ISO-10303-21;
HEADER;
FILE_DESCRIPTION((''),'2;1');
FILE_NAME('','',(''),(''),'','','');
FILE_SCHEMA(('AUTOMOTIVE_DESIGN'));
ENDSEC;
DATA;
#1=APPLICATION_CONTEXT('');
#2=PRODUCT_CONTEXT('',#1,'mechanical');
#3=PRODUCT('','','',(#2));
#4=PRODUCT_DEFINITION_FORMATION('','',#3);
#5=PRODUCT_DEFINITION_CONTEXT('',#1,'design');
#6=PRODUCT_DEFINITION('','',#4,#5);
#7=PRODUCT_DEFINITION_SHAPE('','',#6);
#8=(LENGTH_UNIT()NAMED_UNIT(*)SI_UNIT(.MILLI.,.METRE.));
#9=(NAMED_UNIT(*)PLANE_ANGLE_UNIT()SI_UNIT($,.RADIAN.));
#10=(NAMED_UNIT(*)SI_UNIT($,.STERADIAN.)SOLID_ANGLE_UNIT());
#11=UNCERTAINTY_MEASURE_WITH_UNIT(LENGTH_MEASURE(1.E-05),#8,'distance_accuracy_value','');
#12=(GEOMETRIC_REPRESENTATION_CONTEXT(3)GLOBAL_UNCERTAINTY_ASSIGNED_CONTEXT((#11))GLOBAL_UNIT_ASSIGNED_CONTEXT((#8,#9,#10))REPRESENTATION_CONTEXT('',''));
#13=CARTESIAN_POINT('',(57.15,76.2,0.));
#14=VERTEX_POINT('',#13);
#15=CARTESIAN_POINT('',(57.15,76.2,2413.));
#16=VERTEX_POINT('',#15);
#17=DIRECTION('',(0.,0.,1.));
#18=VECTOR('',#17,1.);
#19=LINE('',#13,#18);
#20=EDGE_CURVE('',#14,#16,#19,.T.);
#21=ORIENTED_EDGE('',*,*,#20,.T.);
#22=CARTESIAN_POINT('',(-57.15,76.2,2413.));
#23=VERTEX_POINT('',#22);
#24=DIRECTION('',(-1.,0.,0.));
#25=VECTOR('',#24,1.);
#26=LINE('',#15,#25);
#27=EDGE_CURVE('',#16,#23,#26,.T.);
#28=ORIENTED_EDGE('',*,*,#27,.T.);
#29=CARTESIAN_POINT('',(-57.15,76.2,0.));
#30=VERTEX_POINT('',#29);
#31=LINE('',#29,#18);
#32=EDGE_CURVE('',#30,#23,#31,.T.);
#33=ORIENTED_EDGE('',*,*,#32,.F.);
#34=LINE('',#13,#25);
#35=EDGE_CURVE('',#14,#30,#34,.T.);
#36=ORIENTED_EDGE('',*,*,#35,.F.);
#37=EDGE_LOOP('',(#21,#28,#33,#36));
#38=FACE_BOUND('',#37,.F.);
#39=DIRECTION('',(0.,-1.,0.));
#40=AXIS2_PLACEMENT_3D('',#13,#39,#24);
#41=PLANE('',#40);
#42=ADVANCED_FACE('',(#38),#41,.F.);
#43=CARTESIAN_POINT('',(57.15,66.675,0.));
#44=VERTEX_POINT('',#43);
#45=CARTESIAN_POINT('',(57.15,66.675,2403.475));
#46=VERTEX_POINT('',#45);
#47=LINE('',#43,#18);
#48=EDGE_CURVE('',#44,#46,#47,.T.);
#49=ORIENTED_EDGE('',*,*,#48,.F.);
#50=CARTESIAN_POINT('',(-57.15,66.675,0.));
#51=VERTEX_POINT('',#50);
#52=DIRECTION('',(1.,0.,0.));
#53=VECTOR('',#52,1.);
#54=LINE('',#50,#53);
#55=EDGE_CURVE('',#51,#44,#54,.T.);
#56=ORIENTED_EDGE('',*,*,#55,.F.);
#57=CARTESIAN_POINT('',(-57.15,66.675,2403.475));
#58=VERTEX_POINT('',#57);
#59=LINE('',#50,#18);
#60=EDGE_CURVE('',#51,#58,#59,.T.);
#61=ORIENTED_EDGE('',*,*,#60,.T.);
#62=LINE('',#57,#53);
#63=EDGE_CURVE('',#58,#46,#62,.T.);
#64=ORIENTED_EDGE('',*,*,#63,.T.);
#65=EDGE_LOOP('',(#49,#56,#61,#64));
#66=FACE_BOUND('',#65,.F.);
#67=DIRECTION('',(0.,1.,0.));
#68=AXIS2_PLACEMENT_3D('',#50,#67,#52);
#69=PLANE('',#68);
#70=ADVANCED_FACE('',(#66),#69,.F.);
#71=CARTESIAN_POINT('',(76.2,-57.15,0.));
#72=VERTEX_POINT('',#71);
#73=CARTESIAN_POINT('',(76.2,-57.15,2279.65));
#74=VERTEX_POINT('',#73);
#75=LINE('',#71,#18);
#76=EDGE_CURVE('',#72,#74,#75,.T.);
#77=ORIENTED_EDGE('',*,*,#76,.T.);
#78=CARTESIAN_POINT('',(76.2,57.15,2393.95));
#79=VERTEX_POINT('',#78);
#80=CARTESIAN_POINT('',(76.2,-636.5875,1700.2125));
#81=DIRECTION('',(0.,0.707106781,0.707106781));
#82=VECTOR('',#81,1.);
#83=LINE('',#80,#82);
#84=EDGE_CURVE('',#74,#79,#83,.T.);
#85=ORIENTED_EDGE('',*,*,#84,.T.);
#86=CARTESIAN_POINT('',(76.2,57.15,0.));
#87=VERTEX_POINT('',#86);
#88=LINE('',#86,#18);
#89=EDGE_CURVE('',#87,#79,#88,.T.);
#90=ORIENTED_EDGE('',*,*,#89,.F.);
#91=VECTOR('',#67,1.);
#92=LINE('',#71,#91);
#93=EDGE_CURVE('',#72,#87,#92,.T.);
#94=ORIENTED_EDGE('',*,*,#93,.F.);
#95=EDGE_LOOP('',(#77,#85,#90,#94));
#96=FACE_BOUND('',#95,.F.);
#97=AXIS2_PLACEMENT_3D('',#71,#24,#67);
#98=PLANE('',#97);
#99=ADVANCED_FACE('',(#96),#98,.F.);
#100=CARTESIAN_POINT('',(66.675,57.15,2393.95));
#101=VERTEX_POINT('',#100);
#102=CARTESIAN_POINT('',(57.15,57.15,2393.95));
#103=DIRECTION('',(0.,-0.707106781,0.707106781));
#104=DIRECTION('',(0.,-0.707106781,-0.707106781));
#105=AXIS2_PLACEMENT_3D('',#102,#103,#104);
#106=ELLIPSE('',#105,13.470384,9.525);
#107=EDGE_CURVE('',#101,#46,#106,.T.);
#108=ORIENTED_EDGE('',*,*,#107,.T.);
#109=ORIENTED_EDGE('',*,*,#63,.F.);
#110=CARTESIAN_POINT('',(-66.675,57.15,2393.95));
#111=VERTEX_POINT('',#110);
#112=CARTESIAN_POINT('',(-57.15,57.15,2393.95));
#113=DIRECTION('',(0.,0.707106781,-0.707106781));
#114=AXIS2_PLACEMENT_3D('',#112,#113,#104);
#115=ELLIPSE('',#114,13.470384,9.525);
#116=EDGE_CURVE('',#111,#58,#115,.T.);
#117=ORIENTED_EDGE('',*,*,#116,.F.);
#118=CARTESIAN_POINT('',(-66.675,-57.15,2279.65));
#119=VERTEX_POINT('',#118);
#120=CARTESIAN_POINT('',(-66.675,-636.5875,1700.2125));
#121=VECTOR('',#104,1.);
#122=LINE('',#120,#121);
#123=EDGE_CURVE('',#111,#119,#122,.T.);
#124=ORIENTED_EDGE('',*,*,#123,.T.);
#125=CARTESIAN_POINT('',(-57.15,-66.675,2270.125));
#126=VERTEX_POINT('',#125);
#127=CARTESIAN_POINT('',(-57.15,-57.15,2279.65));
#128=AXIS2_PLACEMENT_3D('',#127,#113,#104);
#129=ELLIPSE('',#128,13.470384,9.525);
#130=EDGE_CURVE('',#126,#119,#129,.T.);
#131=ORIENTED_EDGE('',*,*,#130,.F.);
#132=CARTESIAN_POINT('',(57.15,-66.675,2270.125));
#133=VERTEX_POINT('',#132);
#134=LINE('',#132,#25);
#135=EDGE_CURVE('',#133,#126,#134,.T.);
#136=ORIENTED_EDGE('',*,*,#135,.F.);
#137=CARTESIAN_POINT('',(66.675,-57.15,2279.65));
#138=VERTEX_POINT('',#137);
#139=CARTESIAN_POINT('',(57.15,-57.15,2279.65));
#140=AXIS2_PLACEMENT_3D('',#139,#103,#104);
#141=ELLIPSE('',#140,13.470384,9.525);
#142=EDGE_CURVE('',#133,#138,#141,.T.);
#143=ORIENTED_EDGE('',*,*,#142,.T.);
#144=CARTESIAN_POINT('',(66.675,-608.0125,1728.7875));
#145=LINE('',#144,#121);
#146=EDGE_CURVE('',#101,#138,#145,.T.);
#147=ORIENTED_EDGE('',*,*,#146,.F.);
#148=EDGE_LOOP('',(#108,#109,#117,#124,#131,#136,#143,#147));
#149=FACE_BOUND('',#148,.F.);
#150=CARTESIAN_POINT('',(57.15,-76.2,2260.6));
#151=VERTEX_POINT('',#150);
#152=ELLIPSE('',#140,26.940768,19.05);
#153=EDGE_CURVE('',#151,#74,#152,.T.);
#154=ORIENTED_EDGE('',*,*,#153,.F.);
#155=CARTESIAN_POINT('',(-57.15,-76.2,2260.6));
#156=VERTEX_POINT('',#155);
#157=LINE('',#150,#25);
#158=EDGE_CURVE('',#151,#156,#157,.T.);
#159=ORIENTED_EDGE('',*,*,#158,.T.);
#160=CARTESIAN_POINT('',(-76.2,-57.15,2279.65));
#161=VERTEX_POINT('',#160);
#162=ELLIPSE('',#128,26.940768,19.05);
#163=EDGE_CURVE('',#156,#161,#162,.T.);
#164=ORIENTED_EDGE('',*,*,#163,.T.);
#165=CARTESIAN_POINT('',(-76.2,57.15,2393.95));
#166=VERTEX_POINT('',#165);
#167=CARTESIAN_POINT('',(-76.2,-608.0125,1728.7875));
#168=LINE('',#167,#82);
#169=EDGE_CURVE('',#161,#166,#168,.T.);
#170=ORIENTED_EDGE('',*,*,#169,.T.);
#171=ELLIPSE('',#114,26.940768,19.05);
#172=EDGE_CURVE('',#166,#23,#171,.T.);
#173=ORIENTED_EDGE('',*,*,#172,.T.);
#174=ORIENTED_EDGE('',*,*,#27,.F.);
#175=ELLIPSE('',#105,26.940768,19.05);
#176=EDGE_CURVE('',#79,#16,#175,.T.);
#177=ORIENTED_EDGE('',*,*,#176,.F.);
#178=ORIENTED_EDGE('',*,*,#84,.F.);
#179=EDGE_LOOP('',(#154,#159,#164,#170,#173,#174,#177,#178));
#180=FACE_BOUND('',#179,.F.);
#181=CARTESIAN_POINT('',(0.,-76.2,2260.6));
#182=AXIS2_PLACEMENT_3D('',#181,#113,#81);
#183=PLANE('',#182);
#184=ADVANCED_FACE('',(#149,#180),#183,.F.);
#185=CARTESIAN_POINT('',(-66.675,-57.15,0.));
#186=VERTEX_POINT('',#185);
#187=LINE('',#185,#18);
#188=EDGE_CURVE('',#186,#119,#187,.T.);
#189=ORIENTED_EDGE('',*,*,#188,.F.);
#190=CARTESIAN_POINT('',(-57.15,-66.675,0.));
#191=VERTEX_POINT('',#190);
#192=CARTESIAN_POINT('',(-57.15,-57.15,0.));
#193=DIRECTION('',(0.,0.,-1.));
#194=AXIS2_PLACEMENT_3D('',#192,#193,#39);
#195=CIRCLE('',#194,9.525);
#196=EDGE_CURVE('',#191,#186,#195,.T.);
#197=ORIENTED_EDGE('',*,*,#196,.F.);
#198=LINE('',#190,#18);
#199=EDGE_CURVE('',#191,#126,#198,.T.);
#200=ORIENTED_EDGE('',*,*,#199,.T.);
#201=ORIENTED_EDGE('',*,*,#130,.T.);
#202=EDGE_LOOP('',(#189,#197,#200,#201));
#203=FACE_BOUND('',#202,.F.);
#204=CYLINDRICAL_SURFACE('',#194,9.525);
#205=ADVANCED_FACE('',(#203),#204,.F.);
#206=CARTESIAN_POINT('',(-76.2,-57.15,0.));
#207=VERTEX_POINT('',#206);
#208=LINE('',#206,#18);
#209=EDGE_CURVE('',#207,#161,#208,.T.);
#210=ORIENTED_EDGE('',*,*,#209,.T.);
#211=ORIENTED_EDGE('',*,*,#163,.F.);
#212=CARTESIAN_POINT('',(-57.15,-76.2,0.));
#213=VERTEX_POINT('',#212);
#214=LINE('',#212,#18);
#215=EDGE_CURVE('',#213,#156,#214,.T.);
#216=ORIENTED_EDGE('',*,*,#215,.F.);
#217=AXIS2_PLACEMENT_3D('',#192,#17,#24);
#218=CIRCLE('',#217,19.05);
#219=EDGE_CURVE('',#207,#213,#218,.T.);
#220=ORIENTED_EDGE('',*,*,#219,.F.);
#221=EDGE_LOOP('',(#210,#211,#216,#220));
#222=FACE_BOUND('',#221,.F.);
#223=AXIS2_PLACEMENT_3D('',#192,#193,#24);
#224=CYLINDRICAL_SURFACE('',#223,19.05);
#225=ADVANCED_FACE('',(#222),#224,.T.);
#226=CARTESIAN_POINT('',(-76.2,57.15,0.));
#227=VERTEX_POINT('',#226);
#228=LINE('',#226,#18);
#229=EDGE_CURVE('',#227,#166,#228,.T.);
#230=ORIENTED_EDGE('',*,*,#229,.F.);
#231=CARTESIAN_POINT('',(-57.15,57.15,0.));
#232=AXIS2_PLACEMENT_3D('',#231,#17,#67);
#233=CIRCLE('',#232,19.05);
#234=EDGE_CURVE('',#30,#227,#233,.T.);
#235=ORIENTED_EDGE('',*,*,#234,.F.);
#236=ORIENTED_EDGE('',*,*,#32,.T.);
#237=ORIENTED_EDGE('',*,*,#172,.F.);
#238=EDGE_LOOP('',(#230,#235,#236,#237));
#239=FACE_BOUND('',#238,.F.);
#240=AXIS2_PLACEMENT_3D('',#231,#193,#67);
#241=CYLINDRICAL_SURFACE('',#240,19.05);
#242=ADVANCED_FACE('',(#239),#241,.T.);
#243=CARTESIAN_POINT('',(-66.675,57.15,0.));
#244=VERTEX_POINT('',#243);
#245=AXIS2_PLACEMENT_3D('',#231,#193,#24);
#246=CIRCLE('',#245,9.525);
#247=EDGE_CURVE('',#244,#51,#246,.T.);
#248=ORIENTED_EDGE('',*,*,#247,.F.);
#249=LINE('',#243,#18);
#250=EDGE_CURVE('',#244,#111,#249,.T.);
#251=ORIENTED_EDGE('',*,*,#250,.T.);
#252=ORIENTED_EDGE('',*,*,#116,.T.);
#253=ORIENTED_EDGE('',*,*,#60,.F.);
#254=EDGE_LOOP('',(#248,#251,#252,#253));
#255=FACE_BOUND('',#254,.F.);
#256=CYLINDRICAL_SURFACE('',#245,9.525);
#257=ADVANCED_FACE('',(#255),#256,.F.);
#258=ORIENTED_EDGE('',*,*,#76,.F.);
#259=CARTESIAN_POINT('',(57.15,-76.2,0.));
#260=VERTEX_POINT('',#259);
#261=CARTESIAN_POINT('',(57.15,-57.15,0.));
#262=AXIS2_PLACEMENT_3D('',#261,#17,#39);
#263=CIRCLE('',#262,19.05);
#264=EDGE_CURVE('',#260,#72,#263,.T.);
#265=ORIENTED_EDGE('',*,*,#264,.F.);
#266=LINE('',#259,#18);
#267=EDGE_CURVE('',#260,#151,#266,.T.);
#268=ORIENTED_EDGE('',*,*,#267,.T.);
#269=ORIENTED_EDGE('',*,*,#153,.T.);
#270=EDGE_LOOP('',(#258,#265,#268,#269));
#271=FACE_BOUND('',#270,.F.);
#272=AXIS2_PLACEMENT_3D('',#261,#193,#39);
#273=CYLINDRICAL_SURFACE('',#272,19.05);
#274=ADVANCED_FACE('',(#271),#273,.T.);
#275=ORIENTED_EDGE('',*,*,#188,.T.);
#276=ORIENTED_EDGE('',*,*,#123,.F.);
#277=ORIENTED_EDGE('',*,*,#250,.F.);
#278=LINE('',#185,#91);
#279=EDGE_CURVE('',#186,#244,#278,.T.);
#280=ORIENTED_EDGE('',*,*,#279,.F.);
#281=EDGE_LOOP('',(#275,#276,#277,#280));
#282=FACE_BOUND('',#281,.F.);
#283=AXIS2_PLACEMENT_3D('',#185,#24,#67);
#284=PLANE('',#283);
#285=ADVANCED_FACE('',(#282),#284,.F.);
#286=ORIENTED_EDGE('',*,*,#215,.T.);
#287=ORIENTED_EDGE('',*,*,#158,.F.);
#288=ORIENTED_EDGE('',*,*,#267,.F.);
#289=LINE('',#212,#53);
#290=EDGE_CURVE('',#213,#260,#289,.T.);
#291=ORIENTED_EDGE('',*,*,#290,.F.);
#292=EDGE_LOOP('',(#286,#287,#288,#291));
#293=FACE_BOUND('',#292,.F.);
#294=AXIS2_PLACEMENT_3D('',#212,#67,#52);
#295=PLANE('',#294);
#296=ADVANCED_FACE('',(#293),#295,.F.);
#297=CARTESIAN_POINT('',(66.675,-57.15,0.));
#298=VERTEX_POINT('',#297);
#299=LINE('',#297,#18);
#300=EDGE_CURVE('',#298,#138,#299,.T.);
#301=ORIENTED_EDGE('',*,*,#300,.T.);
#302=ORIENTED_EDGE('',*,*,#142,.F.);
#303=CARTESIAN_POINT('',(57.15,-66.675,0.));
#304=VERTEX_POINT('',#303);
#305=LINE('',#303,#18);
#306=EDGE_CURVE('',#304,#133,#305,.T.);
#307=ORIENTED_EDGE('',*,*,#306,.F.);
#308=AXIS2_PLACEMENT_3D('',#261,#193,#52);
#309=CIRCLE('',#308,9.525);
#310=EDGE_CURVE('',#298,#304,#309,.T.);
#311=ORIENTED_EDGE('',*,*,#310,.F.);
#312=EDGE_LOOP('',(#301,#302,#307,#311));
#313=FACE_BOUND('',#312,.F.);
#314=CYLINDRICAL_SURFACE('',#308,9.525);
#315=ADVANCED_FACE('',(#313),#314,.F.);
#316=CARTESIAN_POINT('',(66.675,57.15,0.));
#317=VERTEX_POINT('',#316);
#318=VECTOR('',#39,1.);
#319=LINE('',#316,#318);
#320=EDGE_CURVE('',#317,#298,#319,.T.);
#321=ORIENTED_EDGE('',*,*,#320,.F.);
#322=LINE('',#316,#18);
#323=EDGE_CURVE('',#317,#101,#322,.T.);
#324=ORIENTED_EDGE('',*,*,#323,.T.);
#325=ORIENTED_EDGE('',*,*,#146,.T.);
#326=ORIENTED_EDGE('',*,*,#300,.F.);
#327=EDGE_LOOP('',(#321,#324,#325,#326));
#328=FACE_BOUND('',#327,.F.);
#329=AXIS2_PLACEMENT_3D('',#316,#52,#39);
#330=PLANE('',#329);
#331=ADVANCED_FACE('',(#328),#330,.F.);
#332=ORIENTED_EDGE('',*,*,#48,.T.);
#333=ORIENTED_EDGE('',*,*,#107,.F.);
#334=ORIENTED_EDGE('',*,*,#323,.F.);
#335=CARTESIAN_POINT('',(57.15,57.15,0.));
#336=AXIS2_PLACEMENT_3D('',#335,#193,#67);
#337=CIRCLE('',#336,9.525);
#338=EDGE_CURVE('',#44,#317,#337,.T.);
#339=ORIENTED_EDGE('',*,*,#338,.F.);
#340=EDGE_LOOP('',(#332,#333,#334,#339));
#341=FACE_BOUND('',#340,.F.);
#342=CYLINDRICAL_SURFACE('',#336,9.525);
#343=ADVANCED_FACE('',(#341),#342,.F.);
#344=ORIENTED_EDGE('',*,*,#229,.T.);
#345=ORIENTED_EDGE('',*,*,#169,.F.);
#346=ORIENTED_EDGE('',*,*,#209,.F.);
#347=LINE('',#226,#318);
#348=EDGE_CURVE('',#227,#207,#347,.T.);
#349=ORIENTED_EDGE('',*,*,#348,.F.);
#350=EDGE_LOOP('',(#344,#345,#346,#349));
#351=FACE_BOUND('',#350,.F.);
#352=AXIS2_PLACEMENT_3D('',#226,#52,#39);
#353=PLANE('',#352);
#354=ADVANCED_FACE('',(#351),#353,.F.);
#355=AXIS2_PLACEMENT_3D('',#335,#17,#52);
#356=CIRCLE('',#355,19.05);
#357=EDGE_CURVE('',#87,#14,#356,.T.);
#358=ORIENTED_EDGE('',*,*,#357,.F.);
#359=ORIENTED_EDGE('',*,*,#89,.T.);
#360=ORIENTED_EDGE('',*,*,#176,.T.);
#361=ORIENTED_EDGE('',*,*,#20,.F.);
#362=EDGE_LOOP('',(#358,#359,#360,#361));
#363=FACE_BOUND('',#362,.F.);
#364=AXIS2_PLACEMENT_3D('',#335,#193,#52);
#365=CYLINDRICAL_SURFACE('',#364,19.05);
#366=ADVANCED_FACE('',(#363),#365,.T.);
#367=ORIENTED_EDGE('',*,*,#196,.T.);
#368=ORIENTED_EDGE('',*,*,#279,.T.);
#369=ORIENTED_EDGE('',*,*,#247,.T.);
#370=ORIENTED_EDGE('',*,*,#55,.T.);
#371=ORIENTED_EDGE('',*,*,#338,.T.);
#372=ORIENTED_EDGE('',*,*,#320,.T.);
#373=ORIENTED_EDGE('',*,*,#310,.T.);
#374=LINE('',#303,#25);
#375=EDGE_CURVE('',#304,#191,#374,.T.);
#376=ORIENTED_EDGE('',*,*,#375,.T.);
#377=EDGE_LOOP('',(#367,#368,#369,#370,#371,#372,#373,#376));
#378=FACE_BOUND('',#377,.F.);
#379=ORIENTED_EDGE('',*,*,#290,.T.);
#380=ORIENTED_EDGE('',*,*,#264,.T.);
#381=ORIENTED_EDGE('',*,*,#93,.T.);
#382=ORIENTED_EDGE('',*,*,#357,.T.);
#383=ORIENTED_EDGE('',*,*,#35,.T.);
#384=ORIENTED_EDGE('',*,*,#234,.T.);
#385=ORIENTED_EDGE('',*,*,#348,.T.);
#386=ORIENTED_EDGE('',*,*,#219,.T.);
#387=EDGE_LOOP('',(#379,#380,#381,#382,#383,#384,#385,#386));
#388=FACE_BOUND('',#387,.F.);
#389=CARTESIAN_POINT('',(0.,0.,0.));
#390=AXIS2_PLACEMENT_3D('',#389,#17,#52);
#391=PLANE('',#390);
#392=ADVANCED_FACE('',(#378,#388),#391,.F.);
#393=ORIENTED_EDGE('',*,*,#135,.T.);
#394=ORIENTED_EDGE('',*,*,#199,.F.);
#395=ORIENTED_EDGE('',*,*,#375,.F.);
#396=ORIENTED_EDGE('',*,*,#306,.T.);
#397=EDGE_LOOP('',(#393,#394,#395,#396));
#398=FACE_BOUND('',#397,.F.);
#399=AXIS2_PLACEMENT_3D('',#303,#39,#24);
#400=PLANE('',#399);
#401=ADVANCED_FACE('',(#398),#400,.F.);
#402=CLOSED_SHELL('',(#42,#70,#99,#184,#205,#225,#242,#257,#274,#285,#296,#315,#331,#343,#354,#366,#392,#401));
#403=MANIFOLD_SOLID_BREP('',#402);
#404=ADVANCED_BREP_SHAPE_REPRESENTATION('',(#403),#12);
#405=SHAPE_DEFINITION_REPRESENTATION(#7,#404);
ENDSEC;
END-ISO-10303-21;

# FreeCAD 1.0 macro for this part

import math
import FreeCAD as App
import Part
import Sketcher

V = App.Vector
Q = App.Units.Quantity

doc = App.newDocument("Part")
body = doc.addObject("PartDesign::Body", "Body")

sketch1 = body.newObject("Sketcher::SketchObject", "Sketch")
sketch1.AttachmentSupport = (doc.getObject("XY_Plane"), [""])
sketch1.MapMode = "FlatFace"
sketch1.addGeometry([
    Part.ArcOfCircle(Part.Circle(V(-57.15, -57.15, 0), V(0, 0, 1), 19.05), math.radians(180), math.radians(270)),
    Part.LineSegment(V(-57.15, -76.2, 0), V(57.15, -76.2, 0)),
    Part.ArcOfCircle(Part.Circle(V(57.15, -57.15, 0), V(0, 0, 1), 19.05), math.radians(-90), math.radians(0)),
    Part.LineSegment(V(76.2, -57.15, 0), V(76.2, 57.15, 0)),
    Part.ArcOfCircle(Part.Circle(V(57.15, 57.15, 0), V(0, 0, 1), 19.05), math.radians(0), math.radians(90)),
    Part.LineSegment(V(57.15, 76.2, 0), V(-57.15, 76.2, 0)),
    Part.ArcOfCircle(Part.Circle(V(-57.15, 57.15, 0), V(0, 0, 1), 19.05), math.radians(90), math.radians(180)),
    Part.LineSegment(V(-76.2, 57.15, 0), V(-76.2, -57.15, 0)),
    Part.ArcOfCircle(Part.Circle(V(57.15, -57.15, 0), V(0, 0, 1), 9.525), math.radians(-90), math.radians(0)),
    Part.LineSegment(V(57.15, -66.675, 0), V(-57.15, -66.675, 0)),
    Part.ArcOfCircle(Part.Circle(V(-57.15, -57.15, 0), V(0, 0, 1), 9.525), math.radians(180), math.radians(270)),
    Part.LineSegment(V(-66.675, -57.15, 0), V(-66.675, 57.15, 0)),
    Part.ArcOfCircle(Part.Circle(V(-57.15, 57.15, 0), V(0, 0, 1), 9.525), math.radians(90), math.radians(180)),
    Part.LineSegment(V(-57.15, 66.675, 0), V(57.15, 66.675, 0)),
    Part.ArcOfCircle(Part.Circle(V(57.15, 57.15, 0), V(0, 0, 1), 9.525), math.radians(0), math.radians(90)),
    Part.LineSegment(V(66.675, 57.15, 0), V(66.675, -57.15, 0)),
], False)
sketch1.addConstraint([
    Sketcher.Constraint("Tangent", 0, 2, 1, 1),
    Sketcher.Constraint("Tangent", 1, 2, 2, 1),
    Sketcher.Constraint("Tangent", 2, 2, 3, 1),
    Sketcher.Constraint("Tangent", 3, 2, 4, 1),
    Sketcher.Constraint("Tangent", 4, 2, 5, 1),
    Sketcher.Constraint("Tangent", 5, 2, 6, 1),
    Sketcher.Constraint("Tangent", 6, 2, 7, 1),
    Sketcher.Constraint("Tangent", 7, 2, 0, 1),
    Sketcher.Constraint("Tangent", 8, 1, 9, 1),
    Sketcher.Constraint("Tangent", 9, 2, 10, 2),
    Sketcher.Constraint("Tangent", 10, 1, 11, 1),
    Sketcher.Constraint("Tangent", 11, 2, 12, 2),
    Sketcher.Constraint("Tangent", 12, 1, 13, 1),
    Sketcher.Constraint("Tangent", 13, 2, 14, 2),
    Sketcher.Constraint("Tangent", 14, 1, 15, 1),
    Sketcher.Constraint("Tangent", 15, 2, 8, 2),
    Sketcher.Constraint("Horizontal", 1),
    Sketcher.Constraint("Vertical", 3),
    Sketcher.Constraint("Horizontal", 5),
    Sketcher.Constraint("Vertical", 7),
    Sketcher.Constraint("Horizontal", 9),
    Sketcher.Constraint("Vertical", 11),
    Sketcher.Constraint("Horizontal", 13),
    Sketcher.Constraint("Vertical", 15),
    Sketcher.Constraint("Coincident", 8, 3, 2, 3),
    Sketcher.Constraint("Coincident", 10, 3, 0, 3),
    Sketcher.Constraint("Coincident", 12, 3, 6, 3),
    Sketcher.Constraint("Equal", 0, 2),
    Sketcher.Constraint("Equal", 2, 4),
    Sketcher.Constraint("Equal", 4, 6),
    Sketcher.Constraint("Equal", 12, 14),
    Sketcher.Constraint("Symmetric", 0, 3, 4, 3, -1, 1),
    Sketcher.Constraint("Equal", 13, 3),
    Sketcher.Constraint("Radius", 0, Q("0.75 in")),
    Sketcher.Constraint("DistanceX", 1, 1, 1, 2, Q("4.5 in")),
    Sketcher.Constraint("Radius", 8, Q("0.375 in")),
])
pad1 = body.newObject("PartDesign::Pad", "Pad")
pad1.Profile = sketch1
pad1.Length = Q("95 in")

sketch2 = body.newObject("Sketcher::SketchObject", "Sketch001")
sketch2.AttachmentSupport = (doc.getObject("YZ_Plane"), [""])
sketch2.MapMode = "FlatFace"
sketch2.addGeometry([
    Part.LineSegment(V(76.2, 2413, 0), V(-76.2, 2413, 0)),
    Part.LineSegment(V(-76.2, 2413, 0), V(-76.2, 2260.6, 0)),
    Part.LineSegment(V(-76.2, 2260.6, 0), V(76.2, 2413, 0)),
], False)
sketch2.addConstraint([
    Sketcher.Constraint("Coincident", 0, 2, 1, 1),
    Sketcher.Constraint("Coincident", 1, 2, 2, 1),
    Sketcher.Constraint("Coincident", 2, 2, 0, 1),
    Sketcher.Constraint("Horizontal", 0),
    Sketcher.Constraint("Vertical", 1),
    Sketcher.Constraint("Equal", 0, 1),
    Sketcher.Constraint("DistanceX", 0, 2, 0, 1, Q("6 in")),
    Sketcher.Constraint("DistanceX", 0, 2, -1, 1, Q("3 in")),
    Sketcher.Constraint("DistanceY", -1, 1, 0, 2, Q("95 in")),
])
pocket1 = body.newObject("PartDesign::Pocket", "Pocket")
pocket1.Profile = sketch2
pocket1.Type = "ThroughAll"
pocket1.Midplane = True

doc.recompute()
